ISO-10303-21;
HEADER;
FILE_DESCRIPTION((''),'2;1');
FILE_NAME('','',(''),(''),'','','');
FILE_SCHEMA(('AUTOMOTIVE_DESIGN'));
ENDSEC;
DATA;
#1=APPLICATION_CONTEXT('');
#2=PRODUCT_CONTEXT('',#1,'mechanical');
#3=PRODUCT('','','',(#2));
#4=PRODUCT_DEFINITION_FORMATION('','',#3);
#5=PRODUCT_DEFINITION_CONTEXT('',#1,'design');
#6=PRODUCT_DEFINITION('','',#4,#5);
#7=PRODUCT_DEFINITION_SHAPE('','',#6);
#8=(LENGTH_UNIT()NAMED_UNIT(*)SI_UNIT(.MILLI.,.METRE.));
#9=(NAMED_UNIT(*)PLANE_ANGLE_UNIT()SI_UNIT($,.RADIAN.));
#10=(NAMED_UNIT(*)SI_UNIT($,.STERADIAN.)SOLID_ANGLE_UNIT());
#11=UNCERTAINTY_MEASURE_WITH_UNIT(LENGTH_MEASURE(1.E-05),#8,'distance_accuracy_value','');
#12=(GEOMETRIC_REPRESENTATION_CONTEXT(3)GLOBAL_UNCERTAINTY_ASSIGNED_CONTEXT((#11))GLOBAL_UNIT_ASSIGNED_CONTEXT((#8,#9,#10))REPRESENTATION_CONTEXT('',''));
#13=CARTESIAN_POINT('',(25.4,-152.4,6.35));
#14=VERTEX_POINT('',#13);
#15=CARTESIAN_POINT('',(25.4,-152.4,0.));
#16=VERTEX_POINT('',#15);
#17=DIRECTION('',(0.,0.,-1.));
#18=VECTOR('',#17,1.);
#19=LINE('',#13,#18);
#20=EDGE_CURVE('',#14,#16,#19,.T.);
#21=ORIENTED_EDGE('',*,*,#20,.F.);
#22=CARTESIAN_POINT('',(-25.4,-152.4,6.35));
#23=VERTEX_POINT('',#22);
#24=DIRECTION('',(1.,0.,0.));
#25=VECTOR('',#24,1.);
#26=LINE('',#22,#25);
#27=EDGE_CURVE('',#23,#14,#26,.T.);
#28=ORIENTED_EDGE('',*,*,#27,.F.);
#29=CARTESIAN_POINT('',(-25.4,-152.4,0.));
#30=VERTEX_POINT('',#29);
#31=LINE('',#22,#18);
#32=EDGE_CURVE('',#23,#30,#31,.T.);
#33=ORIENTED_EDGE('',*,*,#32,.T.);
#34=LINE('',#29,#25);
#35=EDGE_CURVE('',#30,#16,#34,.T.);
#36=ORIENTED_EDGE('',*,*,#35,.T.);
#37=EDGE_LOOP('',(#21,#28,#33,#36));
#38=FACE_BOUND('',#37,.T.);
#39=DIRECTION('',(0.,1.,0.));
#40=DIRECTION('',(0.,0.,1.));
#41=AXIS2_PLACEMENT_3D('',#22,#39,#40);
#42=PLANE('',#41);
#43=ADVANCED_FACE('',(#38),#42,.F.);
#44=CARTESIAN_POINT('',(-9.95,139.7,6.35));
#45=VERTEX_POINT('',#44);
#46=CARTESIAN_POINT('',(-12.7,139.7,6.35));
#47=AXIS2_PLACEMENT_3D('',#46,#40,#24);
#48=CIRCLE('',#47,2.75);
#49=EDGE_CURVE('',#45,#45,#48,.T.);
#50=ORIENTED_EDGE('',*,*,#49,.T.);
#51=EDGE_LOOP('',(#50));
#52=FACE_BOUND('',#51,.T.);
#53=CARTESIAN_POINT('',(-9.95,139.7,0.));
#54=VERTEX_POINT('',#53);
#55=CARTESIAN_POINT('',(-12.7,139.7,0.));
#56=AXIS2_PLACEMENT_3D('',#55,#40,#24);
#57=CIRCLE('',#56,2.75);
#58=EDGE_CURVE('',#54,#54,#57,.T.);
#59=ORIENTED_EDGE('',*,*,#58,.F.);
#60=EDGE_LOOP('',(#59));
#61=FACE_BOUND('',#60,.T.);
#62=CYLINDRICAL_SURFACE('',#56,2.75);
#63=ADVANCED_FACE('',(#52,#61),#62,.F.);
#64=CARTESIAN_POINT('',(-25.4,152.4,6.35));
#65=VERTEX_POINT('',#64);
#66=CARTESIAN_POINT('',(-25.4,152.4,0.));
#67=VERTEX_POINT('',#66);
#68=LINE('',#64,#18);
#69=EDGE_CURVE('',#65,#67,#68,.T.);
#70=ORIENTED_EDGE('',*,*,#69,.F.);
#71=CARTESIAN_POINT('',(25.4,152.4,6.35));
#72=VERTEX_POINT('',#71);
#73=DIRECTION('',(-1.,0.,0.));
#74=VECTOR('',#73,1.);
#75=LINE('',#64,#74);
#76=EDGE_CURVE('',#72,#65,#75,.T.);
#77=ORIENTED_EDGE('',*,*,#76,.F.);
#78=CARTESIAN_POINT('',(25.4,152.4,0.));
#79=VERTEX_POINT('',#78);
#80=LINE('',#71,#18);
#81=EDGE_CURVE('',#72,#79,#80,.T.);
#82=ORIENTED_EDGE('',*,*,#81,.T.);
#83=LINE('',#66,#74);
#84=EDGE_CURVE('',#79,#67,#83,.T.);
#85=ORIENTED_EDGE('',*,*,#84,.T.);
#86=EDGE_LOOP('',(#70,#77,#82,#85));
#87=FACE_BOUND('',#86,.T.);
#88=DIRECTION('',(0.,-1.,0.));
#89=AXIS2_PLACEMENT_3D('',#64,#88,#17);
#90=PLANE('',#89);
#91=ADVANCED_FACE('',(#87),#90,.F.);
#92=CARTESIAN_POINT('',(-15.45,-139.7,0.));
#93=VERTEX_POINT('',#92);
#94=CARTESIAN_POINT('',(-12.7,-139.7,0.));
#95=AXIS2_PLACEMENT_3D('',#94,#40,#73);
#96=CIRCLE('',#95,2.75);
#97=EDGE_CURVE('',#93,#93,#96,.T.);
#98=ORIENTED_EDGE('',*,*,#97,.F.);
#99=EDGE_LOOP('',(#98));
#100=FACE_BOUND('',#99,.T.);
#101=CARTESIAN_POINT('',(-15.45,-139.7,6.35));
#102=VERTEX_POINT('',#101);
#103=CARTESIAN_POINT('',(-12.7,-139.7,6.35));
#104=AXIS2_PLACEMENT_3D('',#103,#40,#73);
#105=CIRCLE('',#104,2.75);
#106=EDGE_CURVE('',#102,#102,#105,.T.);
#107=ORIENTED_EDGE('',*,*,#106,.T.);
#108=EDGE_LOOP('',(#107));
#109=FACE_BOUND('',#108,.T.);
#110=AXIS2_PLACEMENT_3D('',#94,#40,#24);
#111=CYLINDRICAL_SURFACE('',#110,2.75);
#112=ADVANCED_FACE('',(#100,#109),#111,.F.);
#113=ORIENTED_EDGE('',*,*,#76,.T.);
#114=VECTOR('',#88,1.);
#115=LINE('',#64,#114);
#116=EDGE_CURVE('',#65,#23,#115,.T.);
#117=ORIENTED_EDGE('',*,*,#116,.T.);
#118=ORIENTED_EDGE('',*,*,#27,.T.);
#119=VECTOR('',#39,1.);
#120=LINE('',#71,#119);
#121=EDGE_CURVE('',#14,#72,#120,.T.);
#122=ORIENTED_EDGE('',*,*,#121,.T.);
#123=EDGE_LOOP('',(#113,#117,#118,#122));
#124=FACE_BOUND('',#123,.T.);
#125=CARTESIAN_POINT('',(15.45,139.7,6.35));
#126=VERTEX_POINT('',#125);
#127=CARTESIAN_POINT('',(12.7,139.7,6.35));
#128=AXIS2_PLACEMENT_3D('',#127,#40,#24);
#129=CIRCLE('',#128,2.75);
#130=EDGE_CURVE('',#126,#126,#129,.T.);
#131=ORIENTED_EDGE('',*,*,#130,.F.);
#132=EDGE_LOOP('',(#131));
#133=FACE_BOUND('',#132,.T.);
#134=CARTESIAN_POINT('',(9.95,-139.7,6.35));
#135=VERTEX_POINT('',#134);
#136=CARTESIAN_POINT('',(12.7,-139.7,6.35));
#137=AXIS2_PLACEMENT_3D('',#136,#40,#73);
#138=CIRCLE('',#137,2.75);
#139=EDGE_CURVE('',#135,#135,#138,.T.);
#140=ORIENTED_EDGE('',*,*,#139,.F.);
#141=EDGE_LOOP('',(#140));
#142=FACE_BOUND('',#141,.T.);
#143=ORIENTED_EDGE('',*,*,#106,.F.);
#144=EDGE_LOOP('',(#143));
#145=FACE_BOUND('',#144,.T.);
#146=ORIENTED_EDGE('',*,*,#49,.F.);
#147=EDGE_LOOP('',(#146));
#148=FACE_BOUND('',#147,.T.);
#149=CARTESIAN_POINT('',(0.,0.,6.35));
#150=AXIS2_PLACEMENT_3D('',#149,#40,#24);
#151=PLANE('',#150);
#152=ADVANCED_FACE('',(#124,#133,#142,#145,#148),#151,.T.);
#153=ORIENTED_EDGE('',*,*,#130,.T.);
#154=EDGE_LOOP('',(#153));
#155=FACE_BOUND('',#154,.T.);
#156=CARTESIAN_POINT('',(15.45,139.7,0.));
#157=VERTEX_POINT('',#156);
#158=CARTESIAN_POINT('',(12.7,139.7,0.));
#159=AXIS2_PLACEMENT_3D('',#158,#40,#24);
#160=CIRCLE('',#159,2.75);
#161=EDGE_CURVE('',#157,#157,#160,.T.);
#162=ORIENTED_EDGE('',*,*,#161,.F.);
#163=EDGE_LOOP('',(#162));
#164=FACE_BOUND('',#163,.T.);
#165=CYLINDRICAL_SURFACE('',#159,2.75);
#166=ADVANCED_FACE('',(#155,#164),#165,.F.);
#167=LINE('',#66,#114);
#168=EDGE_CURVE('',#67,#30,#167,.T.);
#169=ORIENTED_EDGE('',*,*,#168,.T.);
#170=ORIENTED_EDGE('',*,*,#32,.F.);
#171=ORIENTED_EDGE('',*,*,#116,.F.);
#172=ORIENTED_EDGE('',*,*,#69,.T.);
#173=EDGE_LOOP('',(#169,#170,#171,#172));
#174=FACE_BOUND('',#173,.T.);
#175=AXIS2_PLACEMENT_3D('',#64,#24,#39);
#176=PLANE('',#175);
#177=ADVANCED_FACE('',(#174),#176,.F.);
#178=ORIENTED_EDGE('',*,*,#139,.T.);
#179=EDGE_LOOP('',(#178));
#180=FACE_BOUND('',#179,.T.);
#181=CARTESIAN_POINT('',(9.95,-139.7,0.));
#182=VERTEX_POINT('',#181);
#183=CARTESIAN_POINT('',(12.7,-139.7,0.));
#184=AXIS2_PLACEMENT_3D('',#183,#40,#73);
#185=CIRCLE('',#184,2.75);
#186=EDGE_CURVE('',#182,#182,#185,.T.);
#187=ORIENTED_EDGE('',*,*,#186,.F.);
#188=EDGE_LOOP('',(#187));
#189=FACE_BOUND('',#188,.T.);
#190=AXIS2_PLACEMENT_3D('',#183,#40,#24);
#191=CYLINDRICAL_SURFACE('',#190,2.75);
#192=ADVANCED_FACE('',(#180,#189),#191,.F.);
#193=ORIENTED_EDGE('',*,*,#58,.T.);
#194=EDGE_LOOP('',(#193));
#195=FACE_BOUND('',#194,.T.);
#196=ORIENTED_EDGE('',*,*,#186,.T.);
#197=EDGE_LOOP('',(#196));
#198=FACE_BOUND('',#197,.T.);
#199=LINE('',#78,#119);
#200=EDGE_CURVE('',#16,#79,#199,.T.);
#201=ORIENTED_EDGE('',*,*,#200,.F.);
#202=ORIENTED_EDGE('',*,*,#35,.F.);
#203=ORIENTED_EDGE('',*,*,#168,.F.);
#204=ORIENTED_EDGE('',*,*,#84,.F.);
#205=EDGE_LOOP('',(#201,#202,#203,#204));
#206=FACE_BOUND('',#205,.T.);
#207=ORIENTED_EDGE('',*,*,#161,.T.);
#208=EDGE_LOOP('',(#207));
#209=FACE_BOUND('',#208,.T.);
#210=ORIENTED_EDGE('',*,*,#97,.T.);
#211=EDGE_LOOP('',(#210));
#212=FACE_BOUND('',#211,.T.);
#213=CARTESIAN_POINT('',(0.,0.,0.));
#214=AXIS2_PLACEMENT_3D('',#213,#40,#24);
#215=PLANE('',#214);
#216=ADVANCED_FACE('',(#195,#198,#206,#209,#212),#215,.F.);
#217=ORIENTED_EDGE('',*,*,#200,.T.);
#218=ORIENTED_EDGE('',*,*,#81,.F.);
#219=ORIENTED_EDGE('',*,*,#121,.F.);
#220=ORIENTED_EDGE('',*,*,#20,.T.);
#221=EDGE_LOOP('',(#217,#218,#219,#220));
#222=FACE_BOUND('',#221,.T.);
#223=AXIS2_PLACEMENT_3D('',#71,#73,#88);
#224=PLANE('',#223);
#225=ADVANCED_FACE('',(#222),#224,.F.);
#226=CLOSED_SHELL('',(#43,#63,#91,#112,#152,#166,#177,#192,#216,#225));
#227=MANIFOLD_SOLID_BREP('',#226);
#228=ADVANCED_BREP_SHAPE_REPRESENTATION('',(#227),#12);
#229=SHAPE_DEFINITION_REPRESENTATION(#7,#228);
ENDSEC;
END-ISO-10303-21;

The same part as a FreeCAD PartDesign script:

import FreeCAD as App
import Part
import Sketcher
from FreeCAD import Vector
Q = App.Units.Quantity


def add_polygon(sketch, points):
    """Adds a closed chain of lines whose ends are joined by coincident constraints."""
    first, n = sketch.GeometryCount, len(points)
    for a, b in zip(points, points[1:] + points[:1]):
        sketch.addGeometry(Part.LineSegment(App.Vector(*a, 0), App.Vector(*b, 0)), False)
    for i in range(n):
        sketch.addConstraint(Sketcher.Constraint("Coincident", first + i, 2, first + (i + 1) % n, 1))

doc = App.newDocument("Part")
params = doc.addObject("Spreadsheet::Sheet", "Params")
for row, (alias, value) in enumerate([
    ("sketch1_width", "2 in"),
    ("sketch1_height", "12 in"),
    ("pad1_length", "0.25 in"),
], start=1):
    params.set(f"A{row}", alias)
    params.set(f"B{row}", "=" + value)
    params.setAlias(f"B{row}", alias)

body = doc.addObject("PartDesign::Body", "Body")

sketch1 = body.newObject("Sketcher::SketchObject", "Sketch")
sketch1.AttachmentSupport = (doc.getObject("XY_Plane"), [""])
sketch1.MapMode = "FlatFace"
add_polygon(sketch1, [(-25, 152), (-25, -152), (25, -152), (25, 152)])
sketch1.addConstraint(Sketcher.Constraint("Vertical", 0))
sketch1.addConstraint(Sketcher.Constraint("Horizontal", 1))
sketch1.addConstraint(Sketcher.Constraint("Vertical", 2))
sketch1.addConstraint(Sketcher.Constraint("Horizontal", 3))
sketch1.addConstraint(Sketcher.Constraint("Symmetric", 0, 2, 2, 2, -1, 1))
sketch1.addConstraint(Sketcher.Constraint("DistanceX", 1, 1, 1, 2, Q("2 in")))
sketch1.addConstraint(Sketcher.Constraint("DistanceY", 0, 2, 0, 1, Q("12 in")))
sketch1.setExpression("Constraints[9]", "Params.sketch1_width")
sketch1.setExpression("Constraints[10]", "Params.sketch1_height")
pad1 = body.newObject("PartDesign::Pad", "Pad")
pad1.Profile = sketch1
pad1.setExpression("Length", "Params.pad1_length")

sketch2 = body.newObject("Sketcher::SketchObject", "Sketch001")
sketch2.AttachmentSupport = (doc.getObject("XY_Plane"), [""])
sketch2.MapMode = "FlatFace"
sketch2.AttachmentOffset = App.Placement(Vector(0, 0, 0.25 * 25.4), App.Rotation())
sketch2.addGeometry(Part.Circle(Vector(12.7, 139.7, 0), Vector(0, 0, 1), 2.8), False)
sketch2.addGeometry(Part.Circle(Vector(-12.7, 139.7, 0), Vector(0, 0, 1), 2.8), False)
sketch2.addGeometry(Part.Circle(Vector(12.7, -139.7, 0), Vector(0, 0, 1), 2.8), False)
sketch2.addGeometry(Part.Circle(Vector(-12.7, -139.7, 0), Vector(0, 0, 1), 2.8), False)
sketch2.addConstraint(Sketcher.Constraint("Equal", 0, 1))
sketch2.addConstraint(Sketcher.Constraint("Equal", 1, 2))
sketch2.addConstraint(Sketcher.Constraint("Equal", 2, 3))
sketch2.addConstraint(Sketcher.Constraint("Symmetric", 1, 3, 2, 3, -1, 1))
sketch2.addConstraint(Sketcher.Constraint("Symmetric", 0, 3, 3, 3, -1, 1))
sketch2.addConstraint(Sketcher.Constraint("Symmetric", 0, 3, 1, 3, -2))
sketch2.addConstraint(Sketcher.Constraint("DistanceX", 1, 3, 0, 3, Q("1 in")))
sketch2.addConstraint(Sketcher.Constraint("DistanceY", 2, 3, 0, 3, Q("11 in")))
sketch2.addConstraint(Sketcher.Constraint("Diameter", 0, Q("5.5 mm")))
pocket1 = body.newObject("PartDesign::Pocket", "Pocket")
pocket1.Profile = sketch2
pocket1.Type = "ThroughAll"

doc.recompute()
